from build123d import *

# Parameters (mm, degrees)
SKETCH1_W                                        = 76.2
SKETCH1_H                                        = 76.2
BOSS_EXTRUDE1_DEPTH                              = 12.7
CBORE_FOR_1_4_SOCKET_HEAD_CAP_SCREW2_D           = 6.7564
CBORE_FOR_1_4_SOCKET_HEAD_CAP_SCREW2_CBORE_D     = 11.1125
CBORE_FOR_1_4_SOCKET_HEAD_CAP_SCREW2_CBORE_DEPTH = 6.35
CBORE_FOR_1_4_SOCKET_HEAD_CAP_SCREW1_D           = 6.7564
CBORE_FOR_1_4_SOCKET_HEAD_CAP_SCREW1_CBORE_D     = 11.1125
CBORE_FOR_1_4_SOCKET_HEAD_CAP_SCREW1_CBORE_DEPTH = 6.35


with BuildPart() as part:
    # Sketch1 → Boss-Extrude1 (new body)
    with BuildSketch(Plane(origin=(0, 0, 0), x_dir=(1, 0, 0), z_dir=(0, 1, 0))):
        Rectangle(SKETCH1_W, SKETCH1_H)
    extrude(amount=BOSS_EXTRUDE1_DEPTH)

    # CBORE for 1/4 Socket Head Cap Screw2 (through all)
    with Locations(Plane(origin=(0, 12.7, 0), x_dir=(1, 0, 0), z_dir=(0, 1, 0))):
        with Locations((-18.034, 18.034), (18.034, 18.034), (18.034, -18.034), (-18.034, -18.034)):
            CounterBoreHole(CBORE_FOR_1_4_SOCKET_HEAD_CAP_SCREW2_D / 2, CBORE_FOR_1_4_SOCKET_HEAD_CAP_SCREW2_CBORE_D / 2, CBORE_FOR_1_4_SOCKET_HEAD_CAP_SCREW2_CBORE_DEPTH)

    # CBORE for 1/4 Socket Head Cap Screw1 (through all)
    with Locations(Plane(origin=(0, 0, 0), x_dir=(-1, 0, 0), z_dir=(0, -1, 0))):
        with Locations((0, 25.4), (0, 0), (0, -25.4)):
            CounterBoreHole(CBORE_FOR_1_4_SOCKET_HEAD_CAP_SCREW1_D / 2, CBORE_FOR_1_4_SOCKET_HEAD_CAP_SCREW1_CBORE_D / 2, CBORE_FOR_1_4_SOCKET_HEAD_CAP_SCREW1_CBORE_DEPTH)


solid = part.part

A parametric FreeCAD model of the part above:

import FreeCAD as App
import Part
import Sketcher

V = App.Vector
Q = App.Units.Quantity

doc = App.newDocument("Part")
body = doc.addObject("PartDesign::Body", "Body")

sketch1 = body.newObject("Sketcher::SketchObject", "Sketch")
sketch1.AttachmentSupport = (doc.getObject("XZ_Plane"), [""])
sketch1.MapMode = "FlatFace"
sketch1.addGeometry(Part.LineSegment(V(-38, -38, 0), V(-38, 38, 0)), False)
sketch1.addGeometry(Part.LineSegment(V(-38, 38, 0), V(38, 38, 0)), False)
sketch1.addGeometry(Part.LineSegment(V(38, 38, 0), V(38, -38, 0)), False)
sketch1.addGeometry(Part.LineSegment(V(38, -38, 0), V(-38, -38, 0)), False)
sketch1.addConstraint(Sketcher.Constraint("Coincident", 0, 2, 1, 1))
sketch1.addConstraint(Sketcher.Constraint("Coincident", 1, 2, 2, 1))
sketch1.addConstraint(Sketcher.Constraint("Coincident", 2, 2, 3, 1))
sketch1.addConstraint(Sketcher.Constraint("Coincident", 3, 2, 0, 1))
sketch1.addConstraint(Sketcher.Constraint("Vertical", 0))
sketch1.addConstraint(Sketcher.Constraint("Horizontal", 1))
sketch1.addConstraint(Sketcher.Constraint("Vertical", 2))
sketch1.addConstraint(Sketcher.Constraint("Horizontal", 3))
sketch1.addConstraint(Sketcher.Constraint("Symmetric", 0, 2, 2, 2, -1, 1))
sketch1.addConstraint(Sketcher.Constraint("Equal", 3, 0))
sketch1.addConstraint(Sketcher.Constraint("DistanceX", 1, 1, 1, 2, Q("3 in")))
pad1 = body.newObject("PartDesign::Pad", "Pad")
pad1.Profile = sketch1
pad1.Length = Q("0.5 in")
pad1.Reversed = True

sketch2 = body.newObject("Sketcher::SketchObject", "Sketch001")
sketch2.AttachmentSupport = (doc.getObject("XZ_Plane"), [""])
sketch2.MapMode = "FlatFace"
sketch2.AttachmentOffset = App.Placement(V(0, 0, -0.5 * 25.4), App.Rotation())
sketch2.addGeometry(Part.Circle(V(-18, -18, 0), V(0, 0, 1), 3.4), False)
sketch2.addGeometry(Part.Circle(V(18, -18, 0), V(0, 0, 1), 3.4), False)
sketch2.addGeometry(Part.Circle(V(18, 18, 0), V(0, 0, 1), 3.4), False)
sketch2.addGeometry(Part.Circle(V(-18, 18, 0), V(0, 0, 1), 3.4), False)
sketch2.addConstraint(Sketcher.Constraint("Equal", 0, 1))
sketch2.addConstraint(Sketcher.Constraint("Equal", 1, 2))
sketch2.addConstraint(Sketcher.Constraint("Equal", 2, 3))
sketch2.addConstraint(Sketcher.Constraint("Symmetric", 0, 3, 2, 3, -1, 1))
sketch2.addConstraint(Sketcher.Constraint("Symmetric", 1, 3, 3, 3, -1, 1))
sketch2.addConstraint(Sketcher.Constraint("Symmetric", 0, 3, 1, 3, -2))
sketch2.addConstraint(Sketcher.Constraint("Diameter", 0, Q("0.266 in")))
sketch2.addConstraint(Sketcher.Constraint("DistanceX", 0, 3, -1, 1, Q("0.71 in")))
sketch2.addConstraint(Sketcher.Constraint("DistanceY", 0, 3, -1, 1, Q("0.71 in")))
doc.recompute()
hole = body.newObject("PartDesign::Hole", "Hole")
hole.Profile = sketch2
hole.ThreadType = "None"
hole.Diameter = Q("0.266 in")
hole.DepthType = "ThroughAll"
hole.HoleCutType = "Counterbore"
hole.HoleCutDiameter = Q("0.4375 in")
hole.HoleCutDepth = Q("0.25 in")
hole.Reversed = True

sketch3 = body.newObject("Sketcher::SketchObject", "Sketch002")
sketch3.AttachmentSupport = (doc.getObject("XZ_Plane"), [""])
sketch3.MapMode = "FlatFace"
sketch3.addGeometry(Part.Circle(V(0, -25.4, 0), V(0, 0, 1), 3.4), False)
sketch3.addGeometry(Part.Circle(V(0, 0, 0), V(0, 0, 1), 3.4), False)
sketch3.addGeometry(Part.Circle(V(0, 25.4, 0), V(0, 0, 1), 3.4), False)
sketch3.addConstraint(Sketcher.Constraint("Coincident", 1, 3, -1, 1))
sketch3.addConstraint(Sketcher.Constraint("Equal", 0, 1))
sketch3.addConstraint(Sketcher.Constraint("Equal", 1, 2))
sketch3.addConstraint(Sketcher.Constraint("Symmetric", 0, 3, 2, 3, -1, 1))
sketch3.addConstraint(Sketcher.Constraint("PointOnObject", 0, 3, -2))
sketch3.addConstraint(Sketcher.Constraint("Diameter", 0, Q("0.266 in")))
sketch3.addConstraint(Sketcher.Constraint("DistanceY", 0, 3, -1, 1, Q("1 in")))
doc.recompute()
hole2 = body.newObject("PartDesign::Hole", "Hole001")
hole2.Profile = sketch3
hole2.ThreadType = "None"
hole2.Diameter = Q("0.266 in")
hole2.DepthType = "ThroughAll"
hole2.HoleCutType = "Counterbore"
hole2.HoleCutDiameter = Q("0.4375 in")
hole2.HoleCutDepth = Q("0.25 in")

doc.recompute()
